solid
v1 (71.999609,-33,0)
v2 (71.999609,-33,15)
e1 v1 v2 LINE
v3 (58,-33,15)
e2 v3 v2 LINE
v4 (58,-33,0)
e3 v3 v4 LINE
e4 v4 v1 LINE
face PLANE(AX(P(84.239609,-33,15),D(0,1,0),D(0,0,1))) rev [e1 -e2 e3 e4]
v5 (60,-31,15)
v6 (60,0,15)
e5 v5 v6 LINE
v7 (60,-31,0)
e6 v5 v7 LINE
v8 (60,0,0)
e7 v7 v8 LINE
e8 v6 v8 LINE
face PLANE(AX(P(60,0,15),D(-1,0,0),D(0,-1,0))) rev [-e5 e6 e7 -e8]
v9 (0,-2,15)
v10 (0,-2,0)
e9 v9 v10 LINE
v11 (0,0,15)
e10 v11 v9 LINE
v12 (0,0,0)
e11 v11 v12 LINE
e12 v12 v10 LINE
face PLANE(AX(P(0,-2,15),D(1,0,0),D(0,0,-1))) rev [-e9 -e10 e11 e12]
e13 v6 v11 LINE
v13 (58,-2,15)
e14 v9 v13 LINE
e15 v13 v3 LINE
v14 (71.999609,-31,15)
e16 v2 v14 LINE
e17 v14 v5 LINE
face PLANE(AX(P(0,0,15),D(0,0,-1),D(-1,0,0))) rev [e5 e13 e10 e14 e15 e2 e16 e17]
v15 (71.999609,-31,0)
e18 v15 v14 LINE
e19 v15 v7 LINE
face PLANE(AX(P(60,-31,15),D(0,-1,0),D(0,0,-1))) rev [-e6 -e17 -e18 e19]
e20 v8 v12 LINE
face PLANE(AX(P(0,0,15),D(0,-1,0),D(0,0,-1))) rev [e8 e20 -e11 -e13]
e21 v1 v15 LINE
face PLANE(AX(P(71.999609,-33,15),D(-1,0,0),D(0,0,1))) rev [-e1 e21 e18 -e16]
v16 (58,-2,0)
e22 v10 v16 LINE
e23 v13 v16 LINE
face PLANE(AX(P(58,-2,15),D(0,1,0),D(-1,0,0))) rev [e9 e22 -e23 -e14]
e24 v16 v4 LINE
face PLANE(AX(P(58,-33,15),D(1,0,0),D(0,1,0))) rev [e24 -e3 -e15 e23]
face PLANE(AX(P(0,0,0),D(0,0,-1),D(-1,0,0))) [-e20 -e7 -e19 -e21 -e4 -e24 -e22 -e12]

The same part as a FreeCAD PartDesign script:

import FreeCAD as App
import Part
import Sketcher
from FreeCAD import Vector


def add_polygon(sketch, points):
    """Adds a closed chain of lines whose ends are joined by coincident constraints."""
    first, n = sketch.GeometryCount, len(points)
    for a, b in zip(points, points[1:] + points[:1]):
        sketch.addGeometry(Part.LineSegment(App.Vector(*a, 0), App.Vector(*b, 0)), False)
    for i in range(n):
        sketch.addConstraint(Sketcher.Constraint("Coincident", first + i, 2, first + (i + 1) % n, 1))

doc = App.newDocument("Part")
body = doc.addObject("PartDesign::Body", "Body")

sketch1 = body.newObject("Sketcher::SketchObject", "Sketch")
sketch1.AttachmentSupport = (doc.getObject("XY_Plane"), [""])
sketch1.MapMode = "FlatFace"
add_polygon(sketch1, [(60, 0), (0, 0), (0, -2), (58, -2), (58, -33), (84.2, -33), (84.2, -31), (60, -31)])
sketch1.addConstraint([
    Sketcher.Constraint("Horizontal", 0),
    Sketcher.Constraint("Vertical", 1),
    Sketcher.Constraint("Horizontal", 2),
    Sketcher.Constraint("Vertical", 3),
    Sketcher.Constraint("Horizontal", 4),
    Sketcher.Constraint("Vertical", 5),
    Sketcher.Constraint("Horizontal", 6),
    Sketcher.Constraint("Vertical", 7),
    Sketcher.Constraint("Coincident", 0, 2, -1, 1),
    Sketcher.Constraint("Equal", 1, 5),
    Sketcher.Constraint("DistanceX", 0, 2, 0, 1, 60.0),
    Sketcher.Constraint("DistanceX", 2, 1, 2, 2, 58.0),
    Sketcher.Constraint("DistanceY", 1, 2, 1, 1, 2.0),
    Sketcher.Constraint("DistanceY", 3, 2, 3, 1, 31.0),
    Sketcher.Constraint("DistanceX", 4, 1, 4, 2, 26.239609),
])
pad1 = body.newObject("PartDesign::Pad", "Pad")
pad1.Profile = sketch1
pad1.Length = 15

sketch2 = body.newObject("Sketcher::SketchObject", "Sketch001")
sketch2.AttachmentSupport = (doc.getObject("XZ_Plane"), [""])
sketch2.MapMode = "FlatFace"
sketch2.AttachmentOffset = App.Placement(Vector(0, 0, 31), App.Rotation())
add_polygon(sketch2, [(72, 0), (72, 15), (84, 15), (84, 0)])
sketch2.addConstraint([
    Sketcher.Constraint("Vertical", 0),
    Sketcher.Constraint("Horizontal", 1),
    Sketcher.Constraint("Vertical", 2),
    Sketcher.Constraint("Horizontal", 3),
    Sketcher.Constraint("PointOnObject", 2, 2, -1),
    Sketcher.Constraint("DistanceY", 0, 1, 0, 2, 15.0),
    Sketcher.Constraint("DistanceX", 1, 1, 1, 2, 12.24),
    Sketcher.Constraint("DistanceX", -1, 1, 0, 2, 71.999609),
])
pocket1 = body.newObject("PartDesign::Pocket", "Pocket")
pocket1.Profile = sketch2
pocket1.Length = 2
pocket1.Reversed = True

doc.recompute()
